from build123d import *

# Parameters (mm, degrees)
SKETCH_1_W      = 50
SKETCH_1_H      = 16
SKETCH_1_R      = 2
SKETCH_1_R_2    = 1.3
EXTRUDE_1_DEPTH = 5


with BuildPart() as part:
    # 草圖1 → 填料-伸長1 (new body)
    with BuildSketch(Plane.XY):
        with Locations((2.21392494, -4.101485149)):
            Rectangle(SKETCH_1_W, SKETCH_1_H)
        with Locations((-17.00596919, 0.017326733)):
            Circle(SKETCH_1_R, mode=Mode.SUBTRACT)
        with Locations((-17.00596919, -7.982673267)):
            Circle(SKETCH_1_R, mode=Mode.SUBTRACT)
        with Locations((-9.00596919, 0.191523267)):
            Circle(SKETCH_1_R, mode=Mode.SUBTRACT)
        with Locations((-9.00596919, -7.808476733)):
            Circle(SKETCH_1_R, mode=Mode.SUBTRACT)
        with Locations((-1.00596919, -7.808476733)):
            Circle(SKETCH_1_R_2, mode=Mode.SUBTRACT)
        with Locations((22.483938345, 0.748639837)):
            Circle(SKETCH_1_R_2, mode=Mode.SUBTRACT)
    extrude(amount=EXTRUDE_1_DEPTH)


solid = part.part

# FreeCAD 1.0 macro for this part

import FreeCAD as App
import Part
import Sketcher


def add_polygon(sketch, points):
    """Adds a closed chain of lines whose ends are joined by coincident constraints."""
    first, n = sketch.GeometryCount, len(points)
    for a, b in zip(points, points[1:] + points[:1]):
        sketch.addGeometry(Part.LineSegment(App.Vector(*a, 0), App.Vector(*b, 0)), False)
    for i in range(n):
        sketch.addConstraint(Sketcher.Constraint("Coincident", first + i, 2, first + (i + 1) % n, 1))

doc = App.newDocument("Part")
body = doc.addObject("PartDesign::Body", "Body")

# Sketch on XY plane
sketch1 = doc.addObject("Sketcher::SketchObject", "Sketch")
body.addObject(sketch1)
sketch1.AttachmentSupport = (doc.XY_Plane, [""])
sketch1.MapMode = "FlatFace"
add_polygon(sketch1, [(-22.786075, 3.898515), (-22.786075, -12.101485), (27.213925, -12.101485), (27.213925, 3.898515)])  # lines 0-3
sketch1.addGeometry(Part.Circle(App.Vector(-17.005969, -7.982673, 0), App.Vector(0, 0, 1), 2), False)  # 4
sketch1.addGeometry(Part.Circle(App.Vector(-9.005969, -7.808477, 0), App.Vector(0, 0, 1), 2), False)  # 5
sketch1.addGeometry(Part.Circle(App.Vector(-1.005969, -7.808477, 0), App.Vector(0, 0, 1), 1.3), False)  # 6
sketch1.addGeometry(Part.Circle(App.Vector(-17.005969, 0.017327, 0), App.Vector(0, 0, 1), 2), False)  # 7
sketch1.addGeometry(Part.Circle(App.Vector(-9.005969, 0.191523, 0), App.Vector(0, 0, 1), 2), False)  # 8
sketch1.addGeometry(Part.Circle(App.Vector(22.483938, 0.74864, 0), App.Vector(0, 0, 1), 1.3), False)  # 9
sketch1.addConstraint([
    Sketcher.Constraint("Vertical", 0),
    Sketcher.Constraint("Horizontal", 1),
    Sketcher.Constraint("Vertical", 2),
    Sketcher.Constraint("Horizontal", 3),
    Sketcher.Constraint("Equal", 4, 5),
    Sketcher.Constraint("Equal", 5, 7),
    Sketcher.Constraint("Equal", 7, 8),
    Sketcher.Constraint("Equal", 6, 9),
    Sketcher.Constraint("Horizontal", 5, 3, 6, 3),
    Sketcher.Constraint("Vertical", 4, 3, 7, 3),
    Sketcher.Constraint("Vertical", 5, 3, 8, 3),
    Sketcher.Constraint("Diameter", 4, 4.0),
    Sketcher.Constraint("Diameter", 6, 2.6),
    Sketcher.Constraint("DistanceX", 1, 1, 1, 2, 50.0),
    Sketcher.Constraint("DistanceY", 0, 2, 0, 1, 16.0),
    Sketcher.Constraint("DistanceX", 4, 3, 5, 3, 8.0),
    Sketcher.Constraint("DistanceX", 5, 3, 6, 3, 8.0),
    Sketcher.Constraint("DistanceY", 4, 3, 7, 3, 8.0),
    Sketcher.Constraint("DistanceY", 5, 3, 8, 3, 8.0),
    Sketcher.Constraint("DistanceX", 4, 3, -1, 1, 17.005969),
    Sketcher.Constraint("DistanceX", -1, 1, 9, 3, 22.483938),
    Sketcher.Constraint("DistanceY", -1, 1, 9, 3, 0.74864),
    Sketcher.Constraint("DistanceY", 0, 2, 4, 3, 4.118812),
    Sketcher.Constraint("DistanceY", 0, 2, 5, 3, 4.293008),
    Sketcher.Constraint("DistanceY", 4, 3, -1, 1, 7.982673),
    Sketcher.Constraint("DistanceX", 0, 2, -1, 1, 22.786075),
])
pad1 = doc.addObject("PartDesign::Pad", "Pad")
body.addObject(pad1)
pad1.Profile = sketch1
pad1.Length = 5

doc.recompute()
